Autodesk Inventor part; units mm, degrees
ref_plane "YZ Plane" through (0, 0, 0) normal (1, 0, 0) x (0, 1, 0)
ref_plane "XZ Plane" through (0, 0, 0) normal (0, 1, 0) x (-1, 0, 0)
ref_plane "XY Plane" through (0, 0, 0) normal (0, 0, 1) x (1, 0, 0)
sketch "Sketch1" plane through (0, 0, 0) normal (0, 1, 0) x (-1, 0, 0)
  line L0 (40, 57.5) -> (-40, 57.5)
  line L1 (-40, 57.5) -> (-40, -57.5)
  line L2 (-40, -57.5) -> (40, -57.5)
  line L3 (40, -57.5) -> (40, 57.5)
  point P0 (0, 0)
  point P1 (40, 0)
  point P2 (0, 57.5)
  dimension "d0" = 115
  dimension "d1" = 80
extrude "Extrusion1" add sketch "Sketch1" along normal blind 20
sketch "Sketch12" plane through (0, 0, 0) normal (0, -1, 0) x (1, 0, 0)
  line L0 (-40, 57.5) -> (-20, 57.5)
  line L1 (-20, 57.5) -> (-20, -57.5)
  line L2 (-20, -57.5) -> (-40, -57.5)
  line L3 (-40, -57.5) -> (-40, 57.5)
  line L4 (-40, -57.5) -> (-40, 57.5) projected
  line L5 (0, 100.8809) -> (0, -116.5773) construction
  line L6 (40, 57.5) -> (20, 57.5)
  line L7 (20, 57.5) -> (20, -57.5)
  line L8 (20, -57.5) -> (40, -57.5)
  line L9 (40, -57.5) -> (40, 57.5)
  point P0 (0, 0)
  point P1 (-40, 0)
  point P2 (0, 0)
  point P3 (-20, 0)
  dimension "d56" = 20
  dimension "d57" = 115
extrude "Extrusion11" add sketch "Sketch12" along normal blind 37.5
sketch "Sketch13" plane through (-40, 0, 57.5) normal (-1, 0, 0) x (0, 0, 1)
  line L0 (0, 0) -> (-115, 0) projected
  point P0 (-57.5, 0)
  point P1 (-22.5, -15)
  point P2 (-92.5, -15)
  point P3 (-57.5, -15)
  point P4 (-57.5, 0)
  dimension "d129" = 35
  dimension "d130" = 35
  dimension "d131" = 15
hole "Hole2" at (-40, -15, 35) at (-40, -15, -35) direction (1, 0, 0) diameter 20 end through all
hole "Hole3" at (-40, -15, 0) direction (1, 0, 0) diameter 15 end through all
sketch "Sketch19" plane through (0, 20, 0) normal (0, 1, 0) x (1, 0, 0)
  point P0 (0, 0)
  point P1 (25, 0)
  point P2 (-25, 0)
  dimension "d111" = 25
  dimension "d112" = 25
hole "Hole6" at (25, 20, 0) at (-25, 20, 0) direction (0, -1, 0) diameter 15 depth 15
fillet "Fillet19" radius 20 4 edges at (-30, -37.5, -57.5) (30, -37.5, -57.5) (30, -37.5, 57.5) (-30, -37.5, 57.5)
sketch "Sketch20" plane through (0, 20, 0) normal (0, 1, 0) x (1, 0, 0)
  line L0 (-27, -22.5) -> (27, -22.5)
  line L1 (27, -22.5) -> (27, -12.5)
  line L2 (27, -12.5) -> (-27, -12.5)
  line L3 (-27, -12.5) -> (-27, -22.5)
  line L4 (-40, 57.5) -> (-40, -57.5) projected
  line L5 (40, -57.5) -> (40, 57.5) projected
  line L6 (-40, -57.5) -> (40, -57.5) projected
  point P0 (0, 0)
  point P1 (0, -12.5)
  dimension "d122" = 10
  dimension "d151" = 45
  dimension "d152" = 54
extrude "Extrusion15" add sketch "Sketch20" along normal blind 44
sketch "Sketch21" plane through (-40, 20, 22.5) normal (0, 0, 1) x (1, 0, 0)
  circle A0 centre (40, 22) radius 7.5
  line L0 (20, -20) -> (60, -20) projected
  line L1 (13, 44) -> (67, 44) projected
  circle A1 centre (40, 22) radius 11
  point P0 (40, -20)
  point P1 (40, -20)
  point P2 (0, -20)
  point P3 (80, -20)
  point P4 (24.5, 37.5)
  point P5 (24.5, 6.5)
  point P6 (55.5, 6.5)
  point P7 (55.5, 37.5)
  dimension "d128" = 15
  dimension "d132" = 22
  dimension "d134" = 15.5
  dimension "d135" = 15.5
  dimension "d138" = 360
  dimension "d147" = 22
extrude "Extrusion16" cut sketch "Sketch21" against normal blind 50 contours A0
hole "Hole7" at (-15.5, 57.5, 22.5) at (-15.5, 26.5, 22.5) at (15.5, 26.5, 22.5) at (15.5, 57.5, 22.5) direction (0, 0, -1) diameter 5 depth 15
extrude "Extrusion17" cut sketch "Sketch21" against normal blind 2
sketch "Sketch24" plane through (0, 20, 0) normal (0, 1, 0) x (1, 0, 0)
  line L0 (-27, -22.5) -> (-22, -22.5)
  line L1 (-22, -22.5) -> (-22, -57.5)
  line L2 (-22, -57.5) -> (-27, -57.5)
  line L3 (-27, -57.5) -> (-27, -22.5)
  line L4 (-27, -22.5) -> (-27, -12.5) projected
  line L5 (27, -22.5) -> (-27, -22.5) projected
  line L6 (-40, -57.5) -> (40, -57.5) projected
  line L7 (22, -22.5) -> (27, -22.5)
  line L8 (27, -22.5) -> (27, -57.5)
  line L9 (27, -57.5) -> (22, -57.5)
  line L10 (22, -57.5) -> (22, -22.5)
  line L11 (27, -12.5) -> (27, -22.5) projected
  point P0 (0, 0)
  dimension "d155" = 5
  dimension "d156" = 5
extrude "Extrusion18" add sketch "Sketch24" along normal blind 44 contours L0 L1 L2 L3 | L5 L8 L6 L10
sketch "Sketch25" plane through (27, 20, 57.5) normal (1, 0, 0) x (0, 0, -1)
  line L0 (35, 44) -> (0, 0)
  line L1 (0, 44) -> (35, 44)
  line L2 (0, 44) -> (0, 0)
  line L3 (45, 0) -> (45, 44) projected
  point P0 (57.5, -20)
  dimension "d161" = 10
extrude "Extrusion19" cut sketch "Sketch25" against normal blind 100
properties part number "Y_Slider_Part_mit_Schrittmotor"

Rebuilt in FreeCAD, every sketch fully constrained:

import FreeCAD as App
import Part
import Sketcher
Q = App.Units.Quantity


def edges_at(feature, points):
    """Names of the edges that pass closest to the given points."""
    edges = feature.Shape.Edges
    near = lambda p: min(range(len(edges)), key=lambda i: edges[i].distToShape(Part.Vertex(*p))[0])
    return sorted({f"Edge{near(p) + 1}" for p in points})

doc = App.newDocument("Part")
body = doc.addObject("PartDesign::Body", "Body")

sketch1 = body.newObject("Sketcher::SketchObject", "Sketch")
sketch1.AttachmentSupport = (doc.getObject("XZ_Plane"), [""])
sketch1.MapMode = "FlatFace"
sketch1.addGeometry(Part.LineSegment(App.Vector(-40, -58, 0), App.Vector(-40, 58, 0)), False)
sketch1.addGeometry(Part.LineSegment(App.Vector(-40, 58, 0), App.Vector(40, 58, 0)), False)
sketch1.addGeometry(Part.LineSegment(App.Vector(40, 58, 0), App.Vector(40, -58, 0)), False)
sketch1.addGeometry(Part.LineSegment(App.Vector(40, -58, 0), App.Vector(-40, -58, 0)), False)
sketch1.addConstraint(Sketcher.Constraint("Coincident", 0, 2, 1, 1))
sketch1.addConstraint(Sketcher.Constraint("Coincident", 1, 2, 2, 1))
sketch1.addConstraint(Sketcher.Constraint("Coincident", 2, 2, 3, 1))
sketch1.addConstraint(Sketcher.Constraint("Coincident", 3, 2, 0, 1))
sketch1.addConstraint(Sketcher.Constraint("Vertical", 0))
sketch1.addConstraint(Sketcher.Constraint("Horizontal", 1))
sketch1.addConstraint(Sketcher.Constraint("Vertical", 2))
sketch1.addConstraint(Sketcher.Constraint("Horizontal", 3))
sketch1.addConstraint(Sketcher.Constraint("Symmetric", 0, 2, 2, 2, -1, 1))
sketch1.addConstraint(Sketcher.Constraint("DistanceX", 1, 1, 1, 2, Q("80 mm")))
sketch1.addConstraint(Sketcher.Constraint("DistanceY", 0, 1, 0, 2, Q("115 mm")))
pad1 = body.newObject("PartDesign::Pad", "Pad")
pad1.Profile = sketch1
pad1.Length = 20
pad1.Reversed = True

sketch2 = body.newObject("Sketcher::SketchObject", "Sketch001")
sketch2.AttachmentSupport = (doc.getObject("XZ_Plane"), [""])
sketch2.MapMode = "FlatFace"
sketch2.addGeometry(Part.LineSegment(App.Vector(-20, 58, 0), App.Vector(-40, 58, 0)), False)
sketch2.addGeometry(Part.LineSegment(App.Vector(-40, 58, 0), App.Vector(-40, -58, 0)), False)
sketch2.addGeometry(Part.LineSegment(App.Vector(-40, -58, 0), App.Vector(-20, -58, 0)), False)
sketch2.addGeometry(Part.LineSegment(App.Vector(-20, -58, 0), App.Vector(-20, 58, 0)), False)
sketch2.addGeometry(Part.LineSegment(App.Vector(40, -58, 0), App.Vector(40, 58, 0)), False)
sketch2.addGeometry(Part.LineSegment(App.Vector(40, 58, 0), App.Vector(20, 58, 0)), False)
sketch2.addGeometry(Part.LineSegment(App.Vector(20, 58, 0), App.Vector(20, -58, 0)), False)
sketch2.addGeometry(Part.LineSegment(App.Vector(20, -58, 0), App.Vector(40, -58, 0)), False)
sketch2.addConstraint(Sketcher.Constraint("Coincident", 0, 2, 1, 1))
sketch2.addConstraint(Sketcher.Constraint("Coincident", 1, 2, 2, 1))
sketch2.addConstraint(Sketcher.Constraint("Coincident", 2, 2, 3, 1))
sketch2.addConstraint(Sketcher.Constraint("Coincident", 3, 2, 0, 1))
sketch2.addConstraint(Sketcher.Constraint("Coincident", 4, 2, 5, 1))
sketch2.addConstraint(Sketcher.Constraint("Coincident", 5, 2, 6, 1))
sketch2.addConstraint(Sketcher.Constraint("Coincident", 6, 2, 7, 1))
sketch2.addConstraint(Sketcher.Constraint("Coincident", 7, 2, 4, 1))
sketch2.addConstraint(Sketcher.Constraint("Horizontal", 0))
sketch2.addConstraint(Sketcher.Constraint("Vertical", 1))
sketch2.addConstraint(Sketcher.Constraint("Horizontal", 2))
sketch2.addConstraint(Sketcher.Constraint("Vertical", 3))
sketch2.addConstraint(Sketcher.Constraint("Vertical", 4))
sketch2.addConstraint(Sketcher.Constraint("Horizontal", 5))
sketch2.addConstraint(Sketcher.Constraint("Vertical", 6))
sketch2.addConstraint(Sketcher.Constraint("Horizontal", 7))
sketch2.addConstraint(Sketcher.Constraint("Symmetric", 1, 2, 4, 2, -1, 1))
sketch2.addConstraint(Sketcher.Constraint("Symmetric", 3, 2, 6, 2, -1, 1))
sketch2.addConstraint(Sketcher.Constraint("Horizontal", 3, 2, 4, 2))
sketch2.addConstraint(Sketcher.Constraint("DistanceX", 0, 2, 0, 1, Q("20 mm")))
sketch2.addConstraint(Sketcher.Constraint("DistanceY", 1, 2, 1, 1, Q("115 mm")))
sketch2.addConstraint(Sketcher.Constraint("DistanceX", 2, 2, -1, 1, Q("20 mm")))
pad2 = body.newObject("PartDesign::Pad", "Pad001")
pad2.Profile = sketch2
pad2.Length = 37.5

sketch3 = body.newObject("Sketcher::SketchObject", "Sketch002")
sketch3.AttachmentSupport = (doc.getObject("YZ_Plane"), [""])
sketch3.MapMode = "FlatFace"
sketch3.AttachmentOffset = App.Placement(App.Vector(0, 0, -40), App.Rotation())
sketch3.addGeometry(Part.Circle(App.Vector(-15, 35, 0), App.Vector(0, 0, 1), 10), False)
sketch3.addGeometry(Part.Circle(App.Vector(-15, -35, 0), App.Vector(0, 0, 1), 10), False)
sketch3.addConstraint(Sketcher.Constraint("Equal", 0, 1))
sketch3.addConstraint(Sketcher.Constraint("Symmetric", 0, 3, 1, 3, -1))
sketch3.addConstraint(Sketcher.Constraint("Diameter", 0, Q("20 mm")))
sketch3.addConstraint(Sketcher.Constraint("DistanceX", 0, 3, -1, 1, Q("15 mm")))
sketch3.addConstraint(Sketcher.Constraint("DistanceY", -1, 1, 0, 3, Q("35 mm")))
doc.recompute()
hole = body.newObject("PartDesign::Hole", "Hole")
hole.Profile = sketch3
hole.ThreadType = "None"
hole.Diameter = 20
hole.DepthType = "ThroughAll"
hole.Reversed = True

sketch4 = body.newObject("Sketcher::SketchObject", "Sketch003")
sketch4.AttachmentSupport = (doc.getObject("YZ_Plane"), [""])
sketch4.MapMode = "FlatFace"
sketch4.AttachmentOffset = App.Placement(App.Vector(0, 0, -40), App.Rotation())
sketch4.addGeometry(Part.Circle(App.Vector(-15, 0, 0), App.Vector(0, 0, 1), 8), False)
sketch4.addConstraint(Sketcher.Constraint("PointOnObject", 0, 3, -1))
sketch4.addConstraint(Sketcher.Constraint("Diameter", 0, Q("15 mm")))
sketch4.addConstraint(Sketcher.Constraint("DistanceX", 0, 3, -1, 1, Q("15 mm")))
doc.recompute()
hole2 = body.newObject("PartDesign::Hole", "Hole001")
hole2.Profile = sketch4
hole2.ThreadType = "None"
hole2.Diameter = 15
hole2.DepthType = "ThroughAll"
hole2.Reversed = True

sketch5 = body.newObject("Sketcher::SketchObject", "Sketch004")
sketch5.AttachmentSupport = (doc.getObject("XZ_Plane"), [""])
sketch5.MapMode = "FlatFace"
sketch5.AttachmentOffset = App.Placement(App.Vector(0, 0, -20), App.Rotation())
sketch5.addGeometry(Part.Circle(App.Vector(25, 0, 0), App.Vector(0, 0, 1), 8), False)
sketch5.addGeometry(Part.Circle(App.Vector(-25, 0, 0), App.Vector(0, 0, 1), 8), False)
sketch5.addConstraint(Sketcher.Constraint("Equal", 0, 1))
sketch5.addConstraint(Sketcher.Constraint("Symmetric", 0, 3, 1, 3, -1, 1))
sketch5.addConstraint(Sketcher.Constraint("PointOnObject", 0, 3, -1))
sketch5.addConstraint(Sketcher.Constraint("Diameter", 0, Q("15 mm")))
sketch5.addConstraint(Sketcher.Constraint("DistanceX", -1, 1, 0, 3, Q("25 mm")))
doc.recompute()
hole3 = body.newObject("PartDesign::Hole", "Hole002")
hole3.Profile = sketch5
hole3.ThreadType = "None"
hole3.Diameter = 15
hole3.DepthType = "Dimension"
hole3.Depth = 15
hole3.DrillPoint = "Flat"
hole3.Reversed = True
doc.recompute()

fillet = body.newObject("PartDesign::Fillet", "Fillet")
fillet.Base = (hole3, edges_at(hole3, [
    (-30, -37.5, -57.5),
    (30, -37.5, -57.5),
    (30, -37.5, 57.5),
    (-30, -37.5, 57.5),
]))
fillet.Radius = 20

sketch6 = body.newObject("Sketcher::SketchObject", "Sketch005")
sketch6.AttachmentSupport = (doc.getObject("XZ_Plane"), [""])
sketch6.MapMode = "FlatFace"
sketch6.AttachmentOffset = App.Placement(App.Vector(0, 0, -20), App.Rotation())
sketch6.addGeometry(Part.LineSegment(App.Vector(-27, 12, 0), App.Vector(-27, 22, 0)), False)
sketch6.addGeometry(Part.LineSegment(App.Vector(-27, 22, 0), App.Vector(27, 22, 0)), False)
sketch6.addGeometry(Part.LineSegment(App.Vector(27, 22, 0), App.Vector(27, 12, 0)), False)
sketch6.addGeometry(Part.LineSegment(App.Vector(27, 12, 0), App.Vector(-27, 12, 0)), False)
sketch6.addConstraint(Sketcher.Constraint("Coincident", 0, 2, 1, 1))
sketch6.addConstraint(Sketcher.Constraint("Coincident", 1, 2, 2, 1))
sketch6.addConstraint(Sketcher.Constraint("Coincident", 2, 2, 3, 1))
sketch6.addConstraint(Sketcher.Constraint("Coincident", 3, 2, 0, 1))
sketch6.addConstraint(Sketcher.Constraint("Vertical", 0))
sketch6.addConstraint(Sketcher.Constraint("Horizontal", 1))
sketch6.addConstraint(Sketcher.Constraint("Vertical", 2))
sketch6.addConstraint(Sketcher.Constraint("Horizontal", 3))
sketch6.addConstraint(Sketcher.Constraint("DistanceX", 1, 1, 1, 2, Q("54 mm")))
sketch6.addConstraint(Sketcher.Constraint("DistanceY", 0, 1, 0, 2, Q("10 mm")))
sketch6.addConstraint(Sketcher.Constraint("DistanceX", 0, 2, -1, 1, Q("27 mm")))
sketch6.addConstraint(Sketcher.Constraint("DistanceY", -1, 1, 0, 2, Q("22.5 mm")))
pad3 = body.newObject("PartDesign::Pad", "Pad002")
pad3.Profile = sketch6
pad3.Length = 44
pad3.Reversed = True

sketch7 = body.newObject("Sketcher::SketchObject", "Sketch006")
sketch7.AttachmentSupport = (doc.getObject("XY_Plane"), [""])
sketch7.MapMode = "FlatFace"
sketch7.AttachmentOffset = App.Placement(App.Vector(0, 0, 22.5), App.Rotation())
sketch7.addGeometry(Part.Circle(App.Vector(0, 42, 0), App.Vector(0, 0, 1), 8), False)
sketch7.addConstraint(Sketcher.Constraint("PointOnObject", 0, 3, -2))
sketch7.addConstraint(Sketcher.Constraint("Diameter", 0, Q("15 mm")))
sketch7.addConstraint(Sketcher.Constraint("DistanceY", -1, 1, 0, 3, Q("42 mm")))
pocket1 = body.newObject("PartDesign::Pocket", "Pocket")
pocket1.Profile = sketch7
pocket1.Length = 50

sketch8 = body.newObject("Sketcher::SketchObject", "Sketch007")
sketch8.AttachmentSupport = (doc.getObject("XY_Plane"), [""])
sketch8.MapMode = "FlatFace"
sketch8.AttachmentOffset = App.Placement(App.Vector(0, 0, 22.5), App.Rotation())
sketch8.addGeometry(Part.Circle(App.Vector(-15.5, 57.5, 0), App.Vector(0, 0, 1), 2.5), False)
sketch8.addGeometry(Part.Circle(App.Vector(-15.5, 26.5, 0), App.Vector(0, 0, 1), 2.5), False)
sketch8.addGeometry(Part.Circle(App.Vector(15.5, 26.5, 0), App.Vector(0, 0, 1), 2.5), False)
sketch8.addGeometry(Part.Circle(App.Vector(15.5, 57.5, 0), App.Vector(0, 0, 1), 2.5), False)
sketch8.addConstraint(Sketcher.Constraint("Equal", 0, 1))
sketch8.addConstraint(Sketcher.Constraint("Equal", 1, 2))
sketch8.addConstraint(Sketcher.Constraint("Equal", 2, 3))
sketch8.addConstraint(Sketcher.Constraint("Symmetric", 1, 3, 2, 3, -2))
sketch8.addConstraint(Sketcher.Constraint("Symmetric", 0, 3, 3, 3, -2))
sketch8.addConstraint(Sketcher.Constraint("Vertical", 0, 3, 1, 3))
sketch8.addConstraint(Sketcher.Constraint("Diameter", 0, Q("5 mm")))
sketch8.addConstraint(Sketcher.Constraint("DistanceY", 1, 3, 0, 3, Q("31 mm")))
sketch8.addConstraint(Sketcher.Constraint("DistanceX", 1, 3, 2, 3, Q("31 mm")))
sketch8.addConstraint(Sketcher.Constraint("DistanceY", -1, 1, 0, 3, Q("57.5 mm")))
doc.recompute()
hole4 = body.newObject("PartDesign::Hole", "Hole003")
hole4.Profile = sketch8
hole4.ThreadType = "None"
hole4.Diameter = 5
hole4.DepthType = "Dimension"
hole4.Depth = 15
hole4.DrillPoint = "Flat"

sketch9 = body.newObject("Sketcher::SketchObject", "Sketch008")
sketch9.AttachmentSupport = (doc.getObject("XY_Plane"), [""])
sketch9.MapMode = "FlatFace"
sketch9.AttachmentOffset = App.Placement(App.Vector(0, 0, 22.5), App.Rotation())
sketch9.addGeometry(Part.Circle(App.Vector(0, 42, 0), App.Vector(0, 0, 1), 11), False)
sketch9.addGeometry(Part.Circle(App.Vector(0, 42, 0), App.Vector(0, 0, 1), 8), False)
sketch9.addConstraint(Sketcher.Constraint("Coincident", 1, 3, 0, 3))
sketch9.addConstraint(Sketcher.Constraint("PointOnObject", 0, 3, -2))
sketch9.addConstraint(Sketcher.Constraint("Diameter", 0, Q("22 mm")))
sketch9.addConstraint(Sketcher.Constraint("Diameter", 1, Q("15 mm")))
sketch9.addConstraint(Sketcher.Constraint("DistanceY", -1, 1, 0, 3, Q("42 mm")))
pocket2 = body.newObject("PartDesign::Pocket", "Pocket001")
pocket2.Profile = sketch9
pocket2.Length = 2

sketch10 = body.newObject("Sketcher::SketchObject", "Sketch009")
sketch10.AttachmentSupport = (doc.getObject("XZ_Plane"), [""])
sketch10.MapMode = "FlatFace"
sketch10.AttachmentOffset = App.Placement(App.Vector(0, 0, -20), App.Rotation())
sketch10.addGeometry(Part.LineSegment(App.Vector(-22, 22, 0), App.Vector(-27, 22, 0)), False)
sketch10.addGeometry(Part.LineSegment(App.Vector(-27, 22, 0), App.Vector(-27, 58, 0)), False)
sketch10.addGeometry(Part.LineSegment(App.Vector(-27, 58, 0), App.Vector(-22, 58, 0)), False)
sketch10.addGeometry(Part.LineSegment(App.Vector(-22, 58, 0), App.Vector(-22, 22, 0)), False)
sketch10.addGeometry(Part.LineSegment(App.Vector(27, 22, 0), App.Vector(22, 22, 0)), False)
sketch10.addGeometry(Part.LineSegment(App.Vector(22, 22, 0), App.Vector(22, 58, 0)), False)
sketch10.addGeometry(Part.LineSegment(App.Vector(22, 58, 0), App.Vector(27, 58, 0)), False)
sketch10.addGeometry(Part.LineSegment(App.Vector(27, 58, 0), App.Vector(27, 22, 0)), False)
sketch10.addConstraint(Sketcher.Constraint("Coincident", 0, 2, 1, 1))
sketch10.addConstraint(Sketcher.Constraint("Coincident", 1, 2, 2, 1))
sketch10.addConstraint(Sketcher.Constraint("Coincident", 2, 2, 3, 1))
sketch10.addConstraint(Sketcher.Constraint("Coincident", 3, 2, 0, 1))
sketch10.addConstraint(Sketcher.Constraint("Coincident", 4, 2, 5, 1))
sketch10.addConstraint(Sketcher.Constraint("Coincident", 5, 2, 6, 1))
sketch10.addConstraint(Sketcher.Constraint("Coincident", 6, 2, 7, 1))
sketch10.addConstraint(Sketcher.Constraint("Coincident", 7, 2, 4, 1))
sketch10.addConstraint(Sketcher.Constraint("Horizontal", 0))
sketch10.addConstraint(Sketcher.Constraint("Vertical", 1))
sketch10.addConstraint(Sketcher.Constraint("Horizontal", 2))
sketch10.addConstraint(Sketcher.Constraint("Vertical", 3))
sketch10.addConstraint(Sketcher.Constraint("Horizontal", 4))
sketch10.addConstraint(Sketcher.Constraint("Vertical", 5))
sketch10.addConstraint(Sketcher.Constraint("Horizontal", 6))
sketch10.addConstraint(Sketcher.Constraint("Vertical", 7))
sketch10.addConstraint(Sketcher.Constraint("Symmetric", 3, 2, 4, 2, -2))
sketch10.addConstraint(Sketcher.Constraint("Symmetric", 1, 2, 6, 2, -2))
sketch10.addConstraint(Sketcher.Constraint("DistanceX", 0, 2, 0, 1, Q("5 mm")))
sketch10.addConstraint(Sketcher.Constraint("DistanceY", 1, 1, 1, 2, Q("35 mm")))
sketch10.addConstraint(Sketcher.Constraint("DistanceX", 0, 2, -1, 1, Q("27 mm")))
sketch10.addConstraint(Sketcher.Constraint("DistanceY", -1, 1, 0, 2, Q("22.5 mm")))
pad4 = body.newObject("PartDesign::Pad", "Pad003")
pad4.Profile = sketch10
pad4.Length = 44
pad4.Reversed = True

sketch11 = body.newObject("Sketcher::SketchObject", "Sketch010")
sketch11.AttachmentSupport = (doc.getObject("YZ_Plane"), [""])
sketch11.MapMode = "FlatFace"
sketch11.AttachmentOffset = App.Placement(App.Vector(0, 0, 27), App.Rotation())
sketch11.addGeometry(Part.LineSegment(App.Vector(20, 58, 0), App.Vector(64, 22, 0)), False)
sketch11.addGeometry(Part.LineSegment(App.Vector(64, 22, 0), App.Vector(64, 58, 0)), False)
sketch11.addGeometry(Part.LineSegment(App.Vector(64, 58, 0), App.Vector(20, 58, 0)), False)
sketch11.addConstraint(Sketcher.Constraint("Coincident", 0, 2, 1, 1))
sketch11.addConstraint(Sketcher.Constraint("Coincident", 1, 2, 2, 1))
sketch11.addConstraint(Sketcher.Constraint("Coincident", 2, 2, 0, 1))
sketch11.addConstraint(Sketcher.Constraint("Vertical", 1))
sketch11.addConstraint(Sketcher.Constraint("Horizontal", 2))
sketch11.addConstraint(Sketcher.Constraint("DistanceX", 2, 2, 2, 1, Q("44 mm")))
sketch11.addConstraint(Sketcher.Constraint("DistanceY", 1, 1, 1, 2, Q("35 mm")))
sketch11.addConstraint(Sketcher.Constraint("DistanceX", -1, 1, 0, 2, Q("64 mm")))
sketch11.addConstraint(Sketcher.Constraint("DistanceY", -1, 1, 0, 2, Q("22.5 mm")))
pocket3 = body.newObject("PartDesign::Pocket", "Pocket002")
pocket3.Profile = sketch11
pocket3.Length = 100

doc.recompute()
